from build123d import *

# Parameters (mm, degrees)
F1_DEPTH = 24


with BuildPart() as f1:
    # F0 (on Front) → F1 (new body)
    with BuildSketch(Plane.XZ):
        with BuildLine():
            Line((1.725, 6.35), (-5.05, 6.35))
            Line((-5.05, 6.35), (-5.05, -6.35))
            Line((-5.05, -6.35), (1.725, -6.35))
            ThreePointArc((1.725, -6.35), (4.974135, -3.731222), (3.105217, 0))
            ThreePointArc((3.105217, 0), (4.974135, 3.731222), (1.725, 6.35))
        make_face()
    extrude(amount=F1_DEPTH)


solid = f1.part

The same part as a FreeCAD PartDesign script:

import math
import FreeCAD as App
import Part
import Sketcher
Q = App.Units.Quantity

doc = App.newDocument("Part")
params = doc.addObject("Spreadsheet::Sheet", "Params")
for row, (alias, value) in enumerate([
    ("sketch1_height", "12.7 mm"),
    ("pad1_length", "24 mm"),
], start=1):
    params.set(f"A{row}", alias)
    params.set(f"B{row}", "=" + value)
    params.setAlias(f"B{row}", alias)

body = doc.addObject("PartDesign::Body", "Body")

# Sketch on XZ plane
sketch1 = doc.addObject("Sketcher::SketchObject", "Sketch")
body.addObject(sketch1)
sketch1.AttachmentSupport = (doc.XZ_Plane, [""])
sketch1.MapMode = "FlatFace"
sketch1.addGeometry(Part.LineSegment(App.Vector(1.725, 6.35, 0), App.Vector(-5.05, 6.35, 0)), False)
sketch1.addGeometry(Part.LineSegment(App.Vector(-5.05, 6.35, 0), App.Vector(-5.05, -6.35, 0)), False)
sketch1.addGeometry(Part.LineSegment(App.Vector(-5.05, -6.35, 0), App.Vector(1.725, -6.35, 0)), False)
sketch1.addGeometry(Part.ArcOfCircle(Part.Circle(App.Vector(1.725001, -3.025, 0), App.Vector(0, 0, 1), 3.325), math.radians(-90.00001), math.radians(65.474216)), False)
sketch1.addGeometry(Part.ArcOfCircle(Part.Circle(App.Vector(1.725001, 3.025, 0), App.Vector(0, 0, 1), 3.325), math.radians(-65.474216), math.radians(90.00001)), False)
sketch1.addConstraint(Sketcher.Constraint("Coincident", 0, 2, 1, 1))
sketch1.addConstraint(Sketcher.Constraint("Coincident", 1, 2, 2, 1))
sketch1.addConstraint(Sketcher.Constraint("Tangent", 2, 2, 3, 1))
sketch1.addConstraint(Sketcher.Constraint("Coincident", 3, 2, 4, 1))
sketch1.addConstraint(Sketcher.Constraint("Tangent", 4, 2, 0, 1))
sketch1.addConstraint(Sketcher.Constraint("Horizontal", 0))
sketch1.addConstraint(Sketcher.Constraint("Vertical", 1))
sketch1.addConstraint(Sketcher.Constraint("Horizontal", 2))
sketch1.addConstraint(Sketcher.Constraint("Equal", 3, 4))
sketch1.addConstraint(Sketcher.Constraint("Symmetric", 3, 3, 4, 3, -1))
sketch1.addConstraint(Sketcher.Constraint("DistanceY", 1, 2, 1, 1, Q("12.7 mm")))
sketch1.addConstraint(Sketcher.Constraint("Radius", 3, Q("3.325 mm")))
sketch1.addConstraint(Sketcher.Constraint("DistanceX", 0, 2, 0, 1, Q("6.775 mm")))
sketch1.addConstraint(Sketcher.Constraint("DistanceX", 0, 2, -1, 1, Q("5.05 mm")))
sketch1.setExpression("Constraints[10]", "Params.sketch1_height")
pad1 = doc.addObject("PartDesign::Pad", "Pad")
body.addObject(pad1)
pad1.Profile = sketch1
pad1.setExpression("Length", "Params.pad1_length")

doc.recompute()
